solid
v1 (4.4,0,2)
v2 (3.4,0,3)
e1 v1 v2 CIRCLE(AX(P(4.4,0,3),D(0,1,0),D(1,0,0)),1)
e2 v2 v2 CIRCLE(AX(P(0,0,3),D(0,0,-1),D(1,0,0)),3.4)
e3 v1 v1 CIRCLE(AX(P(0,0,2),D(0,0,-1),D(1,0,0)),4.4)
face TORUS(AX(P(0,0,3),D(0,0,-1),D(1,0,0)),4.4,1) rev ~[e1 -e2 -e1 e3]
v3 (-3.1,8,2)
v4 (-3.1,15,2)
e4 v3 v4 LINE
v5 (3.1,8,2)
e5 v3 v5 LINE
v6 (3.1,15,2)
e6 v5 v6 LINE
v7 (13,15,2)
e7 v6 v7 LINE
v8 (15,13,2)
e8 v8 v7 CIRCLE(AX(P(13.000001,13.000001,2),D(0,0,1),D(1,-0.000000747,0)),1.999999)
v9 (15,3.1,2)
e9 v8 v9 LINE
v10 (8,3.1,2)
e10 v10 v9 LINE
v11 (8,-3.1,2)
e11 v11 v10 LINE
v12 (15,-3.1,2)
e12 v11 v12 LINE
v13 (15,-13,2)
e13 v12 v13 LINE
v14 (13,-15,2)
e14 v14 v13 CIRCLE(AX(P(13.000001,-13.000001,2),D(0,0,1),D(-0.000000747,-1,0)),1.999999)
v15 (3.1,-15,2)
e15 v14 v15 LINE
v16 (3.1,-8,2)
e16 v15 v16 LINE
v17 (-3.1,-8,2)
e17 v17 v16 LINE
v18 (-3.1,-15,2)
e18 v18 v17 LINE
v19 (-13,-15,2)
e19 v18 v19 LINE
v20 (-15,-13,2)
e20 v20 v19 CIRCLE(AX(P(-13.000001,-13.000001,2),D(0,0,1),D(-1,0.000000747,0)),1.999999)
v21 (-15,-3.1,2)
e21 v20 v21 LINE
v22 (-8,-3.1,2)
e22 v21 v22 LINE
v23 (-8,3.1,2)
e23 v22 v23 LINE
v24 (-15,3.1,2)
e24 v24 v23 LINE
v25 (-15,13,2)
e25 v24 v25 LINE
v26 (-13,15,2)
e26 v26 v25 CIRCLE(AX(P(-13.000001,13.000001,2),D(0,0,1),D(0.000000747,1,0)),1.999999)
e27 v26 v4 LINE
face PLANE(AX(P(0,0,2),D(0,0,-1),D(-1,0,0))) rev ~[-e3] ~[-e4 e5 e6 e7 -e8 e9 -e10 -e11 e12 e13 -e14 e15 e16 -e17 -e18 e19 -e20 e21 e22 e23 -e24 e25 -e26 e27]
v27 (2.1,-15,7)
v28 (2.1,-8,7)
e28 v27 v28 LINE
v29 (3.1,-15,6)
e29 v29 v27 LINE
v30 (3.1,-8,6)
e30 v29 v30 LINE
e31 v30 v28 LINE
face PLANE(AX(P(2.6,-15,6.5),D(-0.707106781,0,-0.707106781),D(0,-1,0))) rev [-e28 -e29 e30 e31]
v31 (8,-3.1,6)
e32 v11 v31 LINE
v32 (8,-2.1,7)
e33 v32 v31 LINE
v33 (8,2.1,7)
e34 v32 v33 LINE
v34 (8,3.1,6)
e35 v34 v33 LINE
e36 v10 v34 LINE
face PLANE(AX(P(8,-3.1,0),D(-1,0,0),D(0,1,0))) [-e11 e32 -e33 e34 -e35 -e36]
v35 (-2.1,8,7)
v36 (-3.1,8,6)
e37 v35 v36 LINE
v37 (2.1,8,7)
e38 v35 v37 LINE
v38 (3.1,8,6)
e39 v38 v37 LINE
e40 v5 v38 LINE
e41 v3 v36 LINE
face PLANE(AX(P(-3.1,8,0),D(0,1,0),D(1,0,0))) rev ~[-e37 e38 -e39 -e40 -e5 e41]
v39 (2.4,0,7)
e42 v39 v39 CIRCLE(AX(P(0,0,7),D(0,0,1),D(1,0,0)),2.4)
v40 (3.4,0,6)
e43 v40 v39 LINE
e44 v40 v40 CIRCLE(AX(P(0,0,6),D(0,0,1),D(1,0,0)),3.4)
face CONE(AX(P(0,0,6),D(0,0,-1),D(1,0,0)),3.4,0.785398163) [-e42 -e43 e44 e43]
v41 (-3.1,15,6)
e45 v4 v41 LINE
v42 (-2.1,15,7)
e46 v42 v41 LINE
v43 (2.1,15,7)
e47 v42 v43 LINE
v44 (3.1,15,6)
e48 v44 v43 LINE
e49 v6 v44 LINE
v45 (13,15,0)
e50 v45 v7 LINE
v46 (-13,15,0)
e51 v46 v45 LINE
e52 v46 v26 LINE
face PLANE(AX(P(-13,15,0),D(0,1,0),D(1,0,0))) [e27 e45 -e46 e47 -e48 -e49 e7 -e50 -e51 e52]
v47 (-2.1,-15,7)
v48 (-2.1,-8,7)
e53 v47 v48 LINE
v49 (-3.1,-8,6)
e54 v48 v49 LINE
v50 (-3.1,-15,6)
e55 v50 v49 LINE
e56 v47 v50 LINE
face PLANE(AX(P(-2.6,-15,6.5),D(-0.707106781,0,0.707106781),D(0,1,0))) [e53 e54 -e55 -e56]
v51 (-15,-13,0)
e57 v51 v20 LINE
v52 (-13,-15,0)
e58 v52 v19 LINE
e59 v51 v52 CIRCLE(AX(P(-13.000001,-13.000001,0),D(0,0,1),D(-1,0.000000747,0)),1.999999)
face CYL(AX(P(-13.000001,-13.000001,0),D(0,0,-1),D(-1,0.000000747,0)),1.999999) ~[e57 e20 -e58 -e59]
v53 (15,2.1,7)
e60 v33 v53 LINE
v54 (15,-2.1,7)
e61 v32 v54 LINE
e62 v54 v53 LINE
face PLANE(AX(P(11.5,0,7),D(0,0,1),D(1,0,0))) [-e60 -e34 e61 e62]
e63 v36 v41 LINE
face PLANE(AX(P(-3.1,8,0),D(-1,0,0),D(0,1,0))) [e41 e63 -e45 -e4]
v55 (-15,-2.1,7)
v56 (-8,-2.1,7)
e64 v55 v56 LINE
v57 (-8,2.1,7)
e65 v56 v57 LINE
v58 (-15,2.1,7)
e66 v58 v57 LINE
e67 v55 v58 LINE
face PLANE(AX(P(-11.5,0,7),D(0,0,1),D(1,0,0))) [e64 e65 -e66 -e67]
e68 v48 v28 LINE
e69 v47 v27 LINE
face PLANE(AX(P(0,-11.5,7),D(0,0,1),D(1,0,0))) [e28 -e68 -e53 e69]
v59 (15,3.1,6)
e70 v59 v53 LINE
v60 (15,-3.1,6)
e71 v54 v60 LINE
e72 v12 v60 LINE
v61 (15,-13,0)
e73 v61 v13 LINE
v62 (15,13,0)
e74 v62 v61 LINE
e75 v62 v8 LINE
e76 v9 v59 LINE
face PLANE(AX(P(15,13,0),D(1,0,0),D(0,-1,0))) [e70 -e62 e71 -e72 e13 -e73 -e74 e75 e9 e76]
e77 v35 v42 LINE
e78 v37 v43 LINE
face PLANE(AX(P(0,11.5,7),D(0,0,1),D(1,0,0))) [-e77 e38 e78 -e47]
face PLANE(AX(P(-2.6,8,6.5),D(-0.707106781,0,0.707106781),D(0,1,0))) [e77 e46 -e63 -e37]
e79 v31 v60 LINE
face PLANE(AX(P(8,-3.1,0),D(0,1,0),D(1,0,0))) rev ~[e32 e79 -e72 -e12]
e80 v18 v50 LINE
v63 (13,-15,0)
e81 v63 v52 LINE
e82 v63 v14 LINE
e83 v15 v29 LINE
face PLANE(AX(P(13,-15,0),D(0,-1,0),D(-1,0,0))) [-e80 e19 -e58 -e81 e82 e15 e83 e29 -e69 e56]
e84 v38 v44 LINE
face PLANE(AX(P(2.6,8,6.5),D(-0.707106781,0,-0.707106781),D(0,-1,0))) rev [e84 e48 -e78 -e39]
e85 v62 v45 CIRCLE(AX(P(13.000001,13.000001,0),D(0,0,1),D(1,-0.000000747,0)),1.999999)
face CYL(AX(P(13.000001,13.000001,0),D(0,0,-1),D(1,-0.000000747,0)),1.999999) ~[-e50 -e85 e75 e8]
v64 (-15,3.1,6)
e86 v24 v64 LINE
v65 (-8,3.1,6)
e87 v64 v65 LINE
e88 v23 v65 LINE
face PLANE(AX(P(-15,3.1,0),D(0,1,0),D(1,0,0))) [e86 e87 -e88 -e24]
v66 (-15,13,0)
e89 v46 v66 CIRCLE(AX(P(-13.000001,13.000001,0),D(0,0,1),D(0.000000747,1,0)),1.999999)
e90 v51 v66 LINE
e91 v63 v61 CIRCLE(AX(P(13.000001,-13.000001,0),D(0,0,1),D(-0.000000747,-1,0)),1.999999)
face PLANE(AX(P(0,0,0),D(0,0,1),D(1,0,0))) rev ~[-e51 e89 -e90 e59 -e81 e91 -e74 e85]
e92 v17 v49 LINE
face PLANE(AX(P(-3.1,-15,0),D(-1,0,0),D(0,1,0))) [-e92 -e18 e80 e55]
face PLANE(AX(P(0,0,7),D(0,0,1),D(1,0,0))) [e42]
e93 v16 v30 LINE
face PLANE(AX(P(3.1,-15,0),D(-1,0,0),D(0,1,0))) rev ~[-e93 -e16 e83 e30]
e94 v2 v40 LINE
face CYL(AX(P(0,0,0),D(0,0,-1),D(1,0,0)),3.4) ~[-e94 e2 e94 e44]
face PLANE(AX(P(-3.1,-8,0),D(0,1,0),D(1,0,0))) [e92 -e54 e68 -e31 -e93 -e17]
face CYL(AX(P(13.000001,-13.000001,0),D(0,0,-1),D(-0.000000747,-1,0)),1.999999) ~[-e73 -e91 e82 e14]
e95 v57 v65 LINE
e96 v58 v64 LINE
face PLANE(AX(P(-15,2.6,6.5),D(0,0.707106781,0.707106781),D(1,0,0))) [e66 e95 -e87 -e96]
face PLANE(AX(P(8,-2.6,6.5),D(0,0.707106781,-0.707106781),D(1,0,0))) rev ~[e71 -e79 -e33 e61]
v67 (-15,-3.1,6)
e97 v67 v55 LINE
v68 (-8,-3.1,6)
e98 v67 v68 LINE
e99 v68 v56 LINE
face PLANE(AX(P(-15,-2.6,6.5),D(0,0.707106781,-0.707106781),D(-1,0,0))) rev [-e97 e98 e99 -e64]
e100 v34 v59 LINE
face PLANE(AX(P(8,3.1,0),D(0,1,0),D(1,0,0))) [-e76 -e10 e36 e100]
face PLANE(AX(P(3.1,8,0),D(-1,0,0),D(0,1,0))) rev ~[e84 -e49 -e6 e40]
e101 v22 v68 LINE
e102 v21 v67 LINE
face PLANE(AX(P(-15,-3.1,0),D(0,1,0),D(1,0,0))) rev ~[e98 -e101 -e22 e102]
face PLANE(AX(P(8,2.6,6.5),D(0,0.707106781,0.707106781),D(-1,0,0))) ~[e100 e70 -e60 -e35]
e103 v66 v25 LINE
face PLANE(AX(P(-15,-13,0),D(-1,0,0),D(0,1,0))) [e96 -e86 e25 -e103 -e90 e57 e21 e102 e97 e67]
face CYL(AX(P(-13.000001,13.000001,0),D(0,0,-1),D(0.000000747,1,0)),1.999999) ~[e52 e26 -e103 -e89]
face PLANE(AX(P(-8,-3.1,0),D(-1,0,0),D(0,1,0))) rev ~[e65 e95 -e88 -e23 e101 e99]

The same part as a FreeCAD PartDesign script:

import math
import FreeCAD as App
import Part
import Sketcher
from FreeCAD import Vector
Q = App.Units.Quantity


def edges_at(feature, points):
    """Names of the edges that pass closest to the given points."""
    edges = feature.Shape.Edges
    near = lambda p: min(range(len(edges)), key=lambda i: edges[i].distToShape(Part.Vertex(*p))[0])
    return sorted({f"Edge{near(p) + 1}" for p in points})


def add_polygon(sketch, points):
    """Adds a closed chain of lines whose ends are joined by coincident constraints."""
    first, n = sketch.GeometryCount, len(points)
    for a, b in zip(points, points[1:] + points[:1]):
        sketch.addGeometry(Part.LineSegment(App.Vector(*a, 0), App.Vector(*b, 0)), False)
    for i in range(n):
        sketch.addConstraint(Sketcher.Constraint("Coincident", first + i, 2, first + (i + 1) % n, 1))

doc = App.newDocument("Part")
body = doc.addObject("PartDesign::Body", "Body")

# Sketch on XY plane
sketch1 = body.newObject("Sketcher::SketchObject", "Sketch")
sketch1.AttachmentSupport = (doc.getObject("XY_Plane"), [""])
sketch1.MapMode = "FlatFace"
sketch1.addGeometry(Part.LineSegment(Vector(13, 15, 0), Vector(-13, 15, 0)), False)
sketch1.addGeometry(Part.ArcOfCircle(Part.Circle(Vector(-13, 13, 0), Vector(0, 0, 1), 2), math.radians(90), math.radians(180)), False)
sketch1.addGeometry(Part.LineSegment(Vector(-15, 13, 0), Vector(-15, -13, 0)), False)
sketch1.addGeometry(Part.ArcOfCircle(Part.Circle(Vector(-13, -13, 0), Vector(0, 0, 1), 2), math.radians(180), math.radians(270)), False)
sketch1.addGeometry(Part.LineSegment(Vector(-13, -15, 0), Vector(13, -15, 0)), False)
sketch1.addGeometry(Part.ArcOfCircle(Part.Circle(Vector(13, -13, 0), Vector(0, 0, 1), 2), math.radians(-90), math.radians(0)), False)
sketch1.addGeometry(Part.LineSegment(Vector(15, -13, 0), Vector(15, 13, 0)), False)
sketch1.addGeometry(Part.ArcOfCircle(Part.Circle(Vector(13, 13, 0), Vector(0, 0, 1), 2), math.radians(0), math.radians(90)), False)
sketch1.addConstraint(Sketcher.Constraint("Tangent", 0, 2, 1, 1))
sketch1.addConstraint(Sketcher.Constraint("Tangent", 1, 2, 2, 1))
sketch1.addConstraint(Sketcher.Constraint("Tangent", 2, 2, 3, 1))
sketch1.addConstraint(Sketcher.Constraint("Tangent", 3, 2, 4, 1))
sketch1.addConstraint(Sketcher.Constraint("Tangent", 4, 2, 5, 1))
sketch1.addConstraint(Sketcher.Constraint("Tangent", 5, 2, 6, 1))
sketch1.addConstraint(Sketcher.Constraint("Tangent", 6, 2, 7, 1))
sketch1.addConstraint(Sketcher.Constraint("Tangent", 7, 2, 0, 1))
sketch1.addConstraint(Sketcher.Constraint("Horizontal", 0))
sketch1.addConstraint(Sketcher.Constraint("Vertical", 2))
sketch1.addConstraint(Sketcher.Constraint("Horizontal", 4))
sketch1.addConstraint(Sketcher.Constraint("Vertical", 6))
sketch1.addConstraint(Sketcher.Constraint("Equal", 1, 3))
sketch1.addConstraint(Sketcher.Constraint("Equal", 3, 5))
sketch1.addConstraint(Sketcher.Constraint("Equal", 5, 7))
sketch1.addConstraint(Sketcher.Constraint("Symmetric", 1, 3, 5, 3, -1, 1))
sketch1.addConstraint(Sketcher.Constraint("Equal", 4, 2))
sketch1.addConstraint(Sketcher.Constraint("Radius", 1, Q("1.999999 mm")))
sketch1.addConstraint(Sketcher.Constraint("DistanceX", 0, 2, 0, 1, Q("26 mm")))
pad1 = body.newObject("PartDesign::Pad", "Pad")
pad1.Profile = sketch1
pad1.Length = 2

# Sketch on XY plane
sketch2 = body.newObject("Sketcher::SketchObject", "Sketch001")
sketch2.AttachmentSupport = (doc.getObject("XY_Plane"), [""])
sketch2.MapMode = "FlatFace"
sketch2.addGeometry(Part.Circle(Vector(0, 0, 0), Vector(0, 0, 1), 3.4), False)  # 0
add_polygon(sketch2, [(-15, 3.1), (-15, -3.1), (-8, -3.1), (-8, 3.1)])  # lines 1-4
add_polygon(sketch2, [(-3.1, -8), (-3.1, -15), (3.1, -15), (3.1, -8)])  # lines 5-8
add_polygon(sketch2, [(8, 3.1), (8, -3.1), (15, -3.1), (15, 3.1)])  # lines 9-12
add_polygon(sketch2, [(-3.1, 15), (-3.1, 8), (3.1, 8), (3.1, 15)])  # lines 13-16
sketch2.addConstraint(Sketcher.Constraint("Vertical", 1))
sketch2.addConstraint(Sketcher.Constraint("Horizontal", 2))
sketch2.addConstraint(Sketcher.Constraint("Vertical", 3))
sketch2.addConstraint(Sketcher.Constraint("Horizontal", 4))
sketch2.addConstraint(Sketcher.Constraint("Vertical", 5))
sketch2.addConstraint(Sketcher.Constraint("Horizontal", 6))
sketch2.addConstraint(Sketcher.Constraint("Vertical", 7))
sketch2.addConstraint(Sketcher.Constraint("Horizontal", 8))
sketch2.addConstraint(Sketcher.Constraint("Vertical", 9))
sketch2.addConstraint(Sketcher.Constraint("Horizontal", 10))
sketch2.addConstraint(Sketcher.Constraint("Vertical", 11))
sketch2.addConstraint(Sketcher.Constraint("Horizontal", 12))
sketch2.addConstraint(Sketcher.Constraint("Vertical", 13))
sketch2.addConstraint(Sketcher.Constraint("Horizontal", 14))
sketch2.addConstraint(Sketcher.Constraint("Vertical", 15))
sketch2.addConstraint(Sketcher.Constraint("Horizontal", 16))
sketch2.addConstraint(Sketcher.Constraint("Coincident", 0, 3, -1, 1))
sketch2.addConstraint(Sketcher.Constraint("Symmetric", 3, 2, 9, 2, -1, 1))
sketch2.addConstraint(Sketcher.Constraint("Symmetric", 1, 2, 11, 2, -1, 1))
sketch2.addConstraint(Sketcher.Constraint("Symmetric", 7, 2, 13, 2, -1, 1))
sketch2.addConstraint(Sketcher.Constraint("Symmetric", 5, 2, 15, 2, -1, 1))
sketch2.addConstraint(Sketcher.Constraint("Horizontal", 2, 2, 9, 2))
sketch2.addConstraint(Sketcher.Constraint("Vertical", 8, 2, 13, 2))
sketch2.addConstraint(Sketcher.Constraint("Equal", 16, 1))
sketch2.addConstraint(Sketcher.Constraint("Equal", 12, 5))
sketch2.addConstraint(Sketcher.Constraint("Diameter", 0, Q("6.8 mm")))
sketch2.addConstraint(Sketcher.Constraint("DistanceX", 2, 1, 2, 2, Q("7 mm")))
sketch2.addConstraint(Sketcher.Constraint("DistanceX", 6, 1, 6, 2, Q("6.2 mm")))
sketch2.addConstraint(Sketcher.Constraint("DistanceX", 1, 2, -1, 1, Q("15 mm")))
sketch2.addConstraint(Sketcher.Constraint("DistanceY", 5, 2, -1, 1, Q("15 mm")))
pad2 = body.newObject("PartDesign::Pad", "Pad001")
pad2.Profile = sketch2
pad2.Length = 7
doc.recompute()

chamfer = body.newObject("PartDesign::Chamfer", "Chamfer")
chamfer.Base = (pad2, edges_at(pad2, [
    (-3.4, 0, 7),
    (-11.5, -3.1, 7),
    (-11.5, 3.1, 7),
    (-3.1, 11.5, 7),
    (3.1, 11.5, 7),
    (11.5, 3.1, 7),
    (11.5, -3.1, 7),
    (3.1, -11.5, 7),
    (-3.1, -11.5, 7),
]))
chamfer.Size = 1
doc.recompute()

fillet = body.newObject("PartDesign::Fillet", "Fillet")
fillet.Base = (chamfer, edges_at(chamfer, [(-3.4, 0, 2)]))
fillet.Radius = 1

doc.recompute()
